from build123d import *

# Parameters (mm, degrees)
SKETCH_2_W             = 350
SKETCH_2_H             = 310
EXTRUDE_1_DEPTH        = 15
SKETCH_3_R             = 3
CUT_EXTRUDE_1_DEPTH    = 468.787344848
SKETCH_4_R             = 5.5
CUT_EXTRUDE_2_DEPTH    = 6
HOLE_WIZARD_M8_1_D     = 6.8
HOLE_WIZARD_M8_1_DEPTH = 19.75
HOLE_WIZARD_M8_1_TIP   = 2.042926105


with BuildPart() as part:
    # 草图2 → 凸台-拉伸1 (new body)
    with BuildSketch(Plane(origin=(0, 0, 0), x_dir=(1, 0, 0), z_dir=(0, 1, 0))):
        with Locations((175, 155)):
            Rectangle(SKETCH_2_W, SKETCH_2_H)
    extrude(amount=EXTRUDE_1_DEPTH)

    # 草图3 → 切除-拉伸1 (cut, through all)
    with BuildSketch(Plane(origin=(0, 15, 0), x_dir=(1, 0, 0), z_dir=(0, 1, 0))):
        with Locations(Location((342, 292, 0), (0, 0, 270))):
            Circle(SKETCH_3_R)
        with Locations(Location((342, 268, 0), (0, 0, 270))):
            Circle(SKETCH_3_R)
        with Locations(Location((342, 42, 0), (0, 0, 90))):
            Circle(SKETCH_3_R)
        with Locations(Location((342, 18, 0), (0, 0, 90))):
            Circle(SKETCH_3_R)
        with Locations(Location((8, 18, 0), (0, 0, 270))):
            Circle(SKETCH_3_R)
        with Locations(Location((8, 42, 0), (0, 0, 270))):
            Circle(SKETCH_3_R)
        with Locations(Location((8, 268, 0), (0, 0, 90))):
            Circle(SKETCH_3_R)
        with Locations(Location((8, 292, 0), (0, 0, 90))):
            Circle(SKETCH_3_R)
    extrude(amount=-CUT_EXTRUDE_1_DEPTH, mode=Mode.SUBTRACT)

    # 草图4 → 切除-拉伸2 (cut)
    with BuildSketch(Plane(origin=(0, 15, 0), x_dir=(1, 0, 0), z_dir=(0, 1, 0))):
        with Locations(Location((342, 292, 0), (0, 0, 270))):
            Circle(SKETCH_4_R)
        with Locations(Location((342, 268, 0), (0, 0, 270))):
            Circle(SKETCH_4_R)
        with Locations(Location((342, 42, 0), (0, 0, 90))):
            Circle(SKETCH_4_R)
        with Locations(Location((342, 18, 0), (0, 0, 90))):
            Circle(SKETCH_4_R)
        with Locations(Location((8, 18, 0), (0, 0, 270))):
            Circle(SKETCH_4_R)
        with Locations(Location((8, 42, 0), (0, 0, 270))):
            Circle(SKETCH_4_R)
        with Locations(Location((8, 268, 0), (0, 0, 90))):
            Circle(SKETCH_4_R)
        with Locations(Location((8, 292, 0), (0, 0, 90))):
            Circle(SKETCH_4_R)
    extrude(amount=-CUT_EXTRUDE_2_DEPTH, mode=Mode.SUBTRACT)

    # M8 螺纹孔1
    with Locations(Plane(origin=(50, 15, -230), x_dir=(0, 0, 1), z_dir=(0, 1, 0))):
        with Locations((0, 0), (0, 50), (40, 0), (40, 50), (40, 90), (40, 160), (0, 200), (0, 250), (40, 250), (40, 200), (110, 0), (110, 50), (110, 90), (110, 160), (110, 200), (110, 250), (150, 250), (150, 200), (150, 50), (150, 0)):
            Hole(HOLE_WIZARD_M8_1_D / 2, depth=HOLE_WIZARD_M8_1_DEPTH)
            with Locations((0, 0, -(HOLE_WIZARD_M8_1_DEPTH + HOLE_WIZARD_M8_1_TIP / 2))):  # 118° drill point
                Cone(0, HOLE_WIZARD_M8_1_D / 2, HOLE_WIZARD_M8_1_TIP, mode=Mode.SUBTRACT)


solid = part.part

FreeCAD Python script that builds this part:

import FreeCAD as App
import Part
import Sketcher


def add_polygon(sketch, points):
    """Adds a closed chain of lines whose ends are joined by coincident constraints."""
    first, n = sketch.GeometryCount, len(points)
    for a, b in zip(points, points[1:] + points[:1]):
        sketch.addGeometry(Part.LineSegment(App.Vector(*a, 0), App.Vector(*b, 0)), False)
    for i in range(n):
        sketch.addConstraint(Sketcher.Constraint("Coincident", first + i, 2, first + (i + 1) % n, 1))

doc = App.newDocument("Part")
body = doc.addObject("PartDesign::Body", "Body")

sketch1 = doc.addObject("Sketcher::SketchObject", "Sketch")
body.addObject(sketch1)
sketch1.AttachmentSupport = (doc.XZ_Plane, [""])
sketch1.MapMode = "FlatFace"
add_polygon(sketch1, [(0, -310), (0, 0), (350, 0), (350, -310)])
sketch1.addConstraint([
    Sketcher.Constraint("Vertical", 0),
    Sketcher.Constraint("Horizontal", 1),
    Sketcher.Constraint("Vertical", 2),
    Sketcher.Constraint("Horizontal", 3),
    Sketcher.Constraint("Coincident", 0, 2, -1, 1),
    Sketcher.Constraint("DistanceX", 1, 1, 1, 2, 350.0),
    Sketcher.Constraint("DistanceY", 0, 1, 0, 2, 310.0),
])
pad1 = doc.addObject("PartDesign::Pad", "Pad")
body.addObject(pad1)
pad1.Profile = sketch1
pad1.Length = 15
pad1.Reversed = True

sketch2 = doc.addObject("Sketcher::SketchObject", "Sketch001")
body.addObject(sketch2)
sketch2.AttachmentSupport = (doc.XZ_Plane, [""])
sketch2.MapMode = "FlatFace"
sketch2.AttachmentOffset = App.Placement(App.Vector(0, 0, -15), App.Rotation())
sketch2.addGeometry([
    Part.Circle(App.Vector(342, -292, 0), App.Vector(0, 0, 1), 3),
    Part.Circle(App.Vector(342, -268, 0), App.Vector(0, 0, 1), 3),
    Part.Circle(App.Vector(342, -42, 0), App.Vector(0, 0, 1), 3),
    Part.Circle(App.Vector(342, -18, 0), App.Vector(0, 0, 1), 3),
    Part.Circle(App.Vector(8, -18, 0), App.Vector(0, 0, 1), 3),
    Part.Circle(App.Vector(8, -42, 0), App.Vector(0, 0, 1), 3),
    Part.Circle(App.Vector(8, -268, 0), App.Vector(0, 0, 1), 3),
    Part.Circle(App.Vector(8, -292, 0), App.Vector(0, 0, 1), 3),
], False)
sketch2.addConstraint([
    Sketcher.Constraint("Equal", 0, 1),
    Sketcher.Constraint("Equal", 1, 2),
    Sketcher.Constraint("Equal", 2, 3),
    Sketcher.Constraint("Equal", 3, 4),
    Sketcher.Constraint("Equal", 4, 5),
    Sketcher.Constraint("Equal", 5, 6),
    Sketcher.Constraint("Equal", 6, 7),
    Sketcher.Constraint("Horizontal", 3, 3, 4, 3),
    Sketcher.Constraint("Horizontal", 2, 3, 5, 3),
    Sketcher.Constraint("Horizontal", 1, 3, 6, 3),
    Sketcher.Constraint("Horizontal", 0, 3, 7, 3),
    Sketcher.Constraint("Vertical", 0, 3, 1, 3),
    Sketcher.Constraint("Vertical", 1, 3, 2, 3),
    Sketcher.Constraint("Vertical", 2, 3, 3, 3),
    Sketcher.Constraint("Vertical", 4, 3, 5, 3),
    Sketcher.Constraint("Vertical", 5, 3, 6, 3),
    Sketcher.Constraint("Vertical", 6, 3, 7, 3),
    Sketcher.Constraint("Diameter", 0, 6.0),
    Sketcher.Constraint("DistanceX", -1, 1, 0, 3, 342.0),
    Sketcher.Constraint("DistanceY", 0, 3, -1, 1, 292.0),
    Sketcher.Constraint("DistanceY", 1, 3, -1, 1, 268.0),
    Sketcher.Constraint("DistanceY", 2, 3, -1, 1, 42.0),
    Sketcher.Constraint("DistanceY", 3, 3, -1, 1, 18.0),
    Sketcher.Constraint("DistanceX", -1, 1, 4, 3, 8.0),
])
pocket1 = doc.addObject("PartDesign::Pocket", "Pocket")
body.addObject(pocket1)
pocket1.Profile = sketch2
pocket1.Type = "ThroughAll"
pocket1.Reversed = True

sketch3 = doc.addObject("Sketcher::SketchObject", "Sketch002")
body.addObject(sketch3)
sketch3.AttachmentSupport = (doc.XZ_Plane, [""])
sketch3.MapMode = "FlatFace"
sketch3.AttachmentOffset = App.Placement(App.Vector(0, 0, -15), App.Rotation())
sketch3.addGeometry([
    Part.Circle(App.Vector(342, -292, 0), App.Vector(0, 0, 1), 6),
    Part.Circle(App.Vector(342, -268, 0), App.Vector(0, 0, 1), 6),
    Part.Circle(App.Vector(342, -42, 0), App.Vector(0, 0, 1), 6),
    Part.Circle(App.Vector(342, -18, 0), App.Vector(0, 0, 1), 6),
    Part.Circle(App.Vector(8, -18, 0), App.Vector(0, 0, 1), 6),
    Part.Circle(App.Vector(8, -42, 0), App.Vector(0, 0, 1), 6),
    Part.Circle(App.Vector(8, -268, 0), App.Vector(0, 0, 1), 6),
    Part.Circle(App.Vector(8, -292, 0), App.Vector(0, 0, 1), 6),
], False)
sketch3.addConstraint([
    Sketcher.Constraint("Equal", 0, 1),
    Sketcher.Constraint("Equal", 1, 2),
    Sketcher.Constraint("Equal", 2, 3),
    Sketcher.Constraint("Equal", 3, 4),
    Sketcher.Constraint("Equal", 4, 5),
    Sketcher.Constraint("Equal", 5, 6),
    Sketcher.Constraint("Equal", 6, 7),
    Sketcher.Constraint("Horizontal", 3, 3, 4, 3),
    Sketcher.Constraint("Horizontal", 2, 3, 5, 3),
    Sketcher.Constraint("Horizontal", 1, 3, 6, 3),
    Sketcher.Constraint("Horizontal", 0, 3, 7, 3),
    Sketcher.Constraint("Vertical", 0, 3, 1, 3),
    Sketcher.Constraint("Vertical", 1, 3, 2, 3),
    Sketcher.Constraint("Vertical", 2, 3, 3, 3),
    Sketcher.Constraint("Vertical", 4, 3, 5, 3),
    Sketcher.Constraint("Vertical", 5, 3, 6, 3),
    Sketcher.Constraint("Vertical", 6, 3, 7, 3),
    Sketcher.Constraint("Diameter", 0, 11.0),
    Sketcher.Constraint("DistanceX", -1, 1, 0, 3, 342.0),
    Sketcher.Constraint("DistanceY", 0, 3, -1, 1, 292.0),
    Sketcher.Constraint("DistanceY", 1, 3, -1, 1, 268.0),
    Sketcher.Constraint("DistanceY", 2, 3, -1, 1, 42.0),
    Sketcher.Constraint("DistanceY", 3, 3, -1, 1, 18.0),
    Sketcher.Constraint("DistanceX", -1, 1, 4, 3, 8.0),
])
pocket2 = doc.addObject("PartDesign::Pocket", "Pocket001")
body.addObject(pocket2)
pocket2.Profile = sketch3
pocket2.Length = 6
pocket2.Reversed = True

sketch4 = doc.addObject("Sketcher::SketchObject", "Sketch003")
body.addObject(sketch4)
sketch4.AttachmentSupport = (doc.XZ_Plane, [""])
sketch4.MapMode = "FlatFace"
sketch4.AttachmentOffset = App.Placement(App.Vector(0, 0, -15), App.Rotation())
sketch4.addGeometry([
    Part.Circle(App.Vector(50, -230, 0), App.Vector(0, 0, 1), 3.4),
    Part.Circle(App.Vector(100, -230, 0), App.Vector(0, 0, 1), 3.4),
    Part.Circle(App.Vector(50, -190, 0), App.Vector(0, 0, 1), 3.4),
    Part.Circle(App.Vector(100, -190, 0), App.Vector(0, 0, 1), 3.4),
    Part.Circle(App.Vector(140, -190, 0), App.Vector(0, 0, 1), 3.4),
    Part.Circle(App.Vector(210, -190, 0), App.Vector(0, 0, 1), 3.4),
    Part.Circle(App.Vector(250, -230, 0), App.Vector(0, 0, 1), 3.4),
    Part.Circle(App.Vector(300, -230, 0), App.Vector(0, 0, 1), 3.4),
    Part.Circle(App.Vector(300, -190, 0), App.Vector(0, 0, 1), 3.4),
    Part.Circle(App.Vector(250, -190, 0), App.Vector(0, 0, 1), 3.4),
    Part.Circle(App.Vector(50, -120, 0), App.Vector(0, 0, 1), 3.4),
    Part.Circle(App.Vector(100, -120, 0), App.Vector(0, 0, 1), 3.4),
    Part.Circle(App.Vector(140, -120, 0), App.Vector(0, 0, 1), 3.4),
    Part.Circle(App.Vector(210, -120, 0), App.Vector(0, 0, 1), 3.4),
    Part.Circle(App.Vector(250, -120, 0), App.Vector(0, 0, 1), 3.4),
    Part.Circle(App.Vector(300, -120, 0), App.Vector(0, 0, 1), 3.4),
    Part.Circle(App.Vector(300, -80, 0), App.Vector(0, 0, 1), 3.4),
    Part.Circle(App.Vector(250, -80, 0), App.Vector(0, 0, 1), 3.4),
    Part.Circle(App.Vector(100, -80, 0), App.Vector(0, 0, 1), 3.4),
    Part.Circle(App.Vector(50, -80, 0), App.Vector(0, 0, 1), 3.4),
], False)
sketch4.addConstraint([
    Sketcher.Constraint("Equal", 0, 1),
    Sketcher.Constraint("Equal", 1, 2),
    Sketcher.Constraint("Equal", 2, 3),
    Sketcher.Constraint("Equal", 3, 4),
    Sketcher.Constraint("Equal", 4, 5),
    Sketcher.Constraint("Equal", 5, 6),
    Sketcher.Constraint("Equal", 6, 7),
    Sketcher.Constraint("Equal", 7, 8),
    Sketcher.Constraint("Equal", 8, 9),
    Sketcher.Constraint("Equal", 9, 10),
    Sketcher.Constraint("Equal", 10, 11),
    Sketcher.Constraint("Equal", 11, 12),
    Sketcher.Constraint("Equal", 12, 13),
    Sketcher.Constraint("Equal", 13, 14),
    Sketcher.Constraint("Equal", 14, 15),
    Sketcher.Constraint("Equal", 15, 16),
    Sketcher.Constraint("Equal", 16, 17),
    Sketcher.Constraint("Equal", 17, 18),
    Sketcher.Constraint("Equal", 18, 19),
    Sketcher.Constraint("Horizontal", 0, 3, 1, 3),
    Sketcher.Constraint("Horizontal", 2, 3, 3, 3),
    Sketcher.Constraint("Horizontal", 3, 3, 4, 3),
    Sketcher.Constraint("Horizontal", 4, 3, 5, 3),
    Sketcher.Constraint("Horizontal", 1, 3, 6, 3),
    Sketcher.Constraint("Horizontal", 6, 3, 7, 3),
    Sketcher.Constraint("Horizontal", 5, 3, 8, 3),
    Sketcher.Constraint("Horizontal", 8, 3, 9, 3),
    Sketcher.Constraint("Horizontal", 10, 3, 11, 3),
    Sketcher.Constraint("Horizontal", 11, 3, 12, 3),
    Sketcher.Constraint("Horizontal", 12, 3, 13, 3),
    Sketcher.Constraint("Horizontal", 13, 3, 14, 3),
    Sketcher.Constraint("Horizontal", 14, 3, 15, 3),
    Sketcher.Constraint("Horizontal", 16, 3, 17, 3),
    Sketcher.Constraint("Horizontal", 17, 3, 18, 3),
    Sketcher.Constraint("Horizontal", 18, 3, 19, 3),
    Sketcher.Constraint("Vertical", 0, 3, 2, 3),
    Sketcher.Constraint("Vertical", 1, 3, 3, 3),
    Sketcher.Constraint("Vertical", 7, 3, 8, 3),
    Sketcher.Constraint("Vertical", 6, 3, 9, 3),
    Sketcher.Constraint("Vertical", 2, 3, 10, 3),
    Sketcher.Constraint("Vertical", 3, 3, 11, 3),
    Sketcher.Constraint("Vertical", 4, 3, 12, 3),
    Sketcher.Constraint("Vertical", 5, 3, 13, 3),
    Sketcher.Constraint("Vertical", 9, 3, 14, 3),
    Sketcher.Constraint("Vertical", 8, 3, 15, 3),
    Sketcher.Constraint("Vertical", 15, 3, 16, 3),
    Sketcher.Constraint("Vertical", 14, 3, 17, 3),
    Sketcher.Constraint("Vertical", 11, 3, 18, 3),
    Sketcher.Constraint("Vertical", 10, 3, 19, 3),
    Sketcher.Constraint("Diameter", 0, 6.8),
    Sketcher.Constraint("DistanceX", -1, 1, 0, 3, 50.0),
    Sketcher.Constraint("DistanceY", 0, 3, -1, 1, 230.0),
    Sketcher.Constraint("DistanceX", -1, 1, 1, 3, 100.0),
    Sketcher.Constraint("DistanceY", 2, 3, -1, 1, 190.0),
    Sketcher.Constraint("DistanceX", -1, 1, 4, 3, 140.0),
    Sketcher.Constraint("DistanceX", -1, 1, 5, 3, 210.0),
    Sketcher.Constraint("DistanceX", -1, 1, 6, 3, 250.0),
    Sketcher.Constraint("DistanceX", -1, 1, 7, 3, 300.0),
    Sketcher.Constraint("DistanceY", 10, 3, -1, 1, 120.0),
    Sketcher.Constraint("DistanceY", 16, 3, -1, 1, 80.0),
])
doc.recompute()
hole = doc.addObject("PartDesign::Hole", "Hole")
body.addObject(hole)
hole.Profile = sketch4
hole.ThreadType = "None"
hole.Diameter = 6.8
hole.DepthType = "Dimension"
hole.Depth = 19.75
hole.DrillPoint = "Angled"
hole.DrillPointAngle = 118
hole.Reversed = True

doc.recompute()
